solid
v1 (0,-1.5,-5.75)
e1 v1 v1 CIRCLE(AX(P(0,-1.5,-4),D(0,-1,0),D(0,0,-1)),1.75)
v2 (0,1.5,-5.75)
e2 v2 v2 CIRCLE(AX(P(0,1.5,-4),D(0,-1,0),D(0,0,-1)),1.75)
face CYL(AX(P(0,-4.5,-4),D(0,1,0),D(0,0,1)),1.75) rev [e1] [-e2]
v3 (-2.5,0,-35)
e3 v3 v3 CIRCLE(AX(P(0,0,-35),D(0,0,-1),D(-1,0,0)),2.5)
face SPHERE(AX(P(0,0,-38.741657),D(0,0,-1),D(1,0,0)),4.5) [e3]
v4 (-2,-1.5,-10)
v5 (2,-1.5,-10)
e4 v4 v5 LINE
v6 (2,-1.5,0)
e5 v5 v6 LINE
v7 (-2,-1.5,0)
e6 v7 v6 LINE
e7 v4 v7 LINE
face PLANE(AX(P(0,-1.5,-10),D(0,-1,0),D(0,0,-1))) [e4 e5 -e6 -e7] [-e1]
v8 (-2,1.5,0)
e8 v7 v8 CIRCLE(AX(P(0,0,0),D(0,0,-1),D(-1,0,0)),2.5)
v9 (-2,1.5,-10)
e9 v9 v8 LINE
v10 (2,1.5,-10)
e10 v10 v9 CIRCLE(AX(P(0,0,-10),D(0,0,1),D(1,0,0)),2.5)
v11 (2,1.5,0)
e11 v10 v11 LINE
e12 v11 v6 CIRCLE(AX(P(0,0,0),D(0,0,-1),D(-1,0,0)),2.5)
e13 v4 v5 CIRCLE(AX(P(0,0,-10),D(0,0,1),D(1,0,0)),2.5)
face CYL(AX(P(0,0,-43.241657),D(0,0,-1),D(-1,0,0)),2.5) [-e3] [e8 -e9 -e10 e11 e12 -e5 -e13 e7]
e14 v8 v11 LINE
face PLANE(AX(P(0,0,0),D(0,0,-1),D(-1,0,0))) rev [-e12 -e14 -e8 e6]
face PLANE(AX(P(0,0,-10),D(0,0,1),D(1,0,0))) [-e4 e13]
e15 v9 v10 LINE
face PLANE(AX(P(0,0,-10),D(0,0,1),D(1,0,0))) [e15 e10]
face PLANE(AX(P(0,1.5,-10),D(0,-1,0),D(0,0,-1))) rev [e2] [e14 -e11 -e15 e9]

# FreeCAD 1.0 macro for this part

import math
import FreeCAD as App
import Part
import Sketcher

V = App.Vector

doc = App.newDocument("Part")
body = doc.addObject("PartDesign::Body", "Body")

# Sketch on XZ plane
sketch1 = doc.addObject("Sketcher::SketchObject", "Sketch")
body.addObject(sketch1)
sketch1.AttachmentSupport = (doc.XZ_Plane, [""])
sketch1.MapMode = "FlatFace"
sketch1.addGeometry([
    Part.LineSegment(V(0, -43.241657, 0), V(0, 0, 0)),
    Part.LineSegment(V(0, 0, 0), V(2.5, 0, 0)),
    Part.LineSegment(V(2.5, 0, 0), V(2.5, -35, 0)),
    Part.ArcOfCircle(Part.Circle(V(0, -38.741657, 0), V(0, 0, 1), 4.5), math.radians(-90), math.radians(56.251011)),
], False)
sketch1.addConstraint([
    Sketcher.Constraint("Coincident", 0, 2, 1, 1),
    Sketcher.Constraint("Coincident", 1, 2, 2, 1),
    Sketcher.Constraint("Coincident", 2, 2, 3, 2),
    Sketcher.Constraint("Coincident", 3, 1, 0, 1),
    Sketcher.Constraint("Vertical", 0),
    Sketcher.Constraint("Horizontal", 1),
    Sketcher.Constraint("Vertical", 2),
    Sketcher.Constraint("Coincident", 0, 2, -1, 1),
    Sketcher.Constraint("PointOnObject", 3, 3, -2),
    Sketcher.Constraint("Radius", 3, 4.5),
    Sketcher.Constraint("DistanceY", 2, 2, 2, 1, 35.0),
    Sketcher.Constraint("DistanceX", 1, 1, 1, 2, 2.5),
])
revolution = doc.addObject("PartDesign::Revolution", "Revolution")
body.addObject(revolution)
revolution.Profile = sketch1
revolution.ReferenceAxis = (sketch1, ["V_Axis"])
revolution.Angle = 360

# Sketch on XY plane
sketch2 = doc.addObject("Sketcher::SketchObject", "Sketch001")
body.addObject(sketch2)
sketch2.AttachmentSupport = (doc.XY_Plane, [""])
sketch2.MapMode = "FlatFace"
sketch2.AttachmentOffset = App.Placement(V(0, 0, -10), App.Rotation())
sketch2.addGeometry([
    Part.ArcOfCircle(Part.Circle(V(0, 0, 0), V(0, 0, 1), 2.5), math.radians(36.869898), math.radians(143.130102)),
    Part.LineSegment(V(-2, 1.5, 0), V(2, 1.5, 0)),
    Part.LineSegment(V(2, -1.5, 0), V(-2, -1.5, 0)),
    Part.ArcOfCircle(Part.Circle(V(0, 0, 0), V(0, 0, 1), 2.5), math.radians(-143.130102), math.radians(-36.869898)),
], False)
sketch2.addConstraint([
    Sketcher.Constraint("Coincident", 0, 1, 1, 2),
    Sketcher.Constraint("Coincident", 1, 1, 0, 2),
    Sketcher.Constraint("Coincident", 2, 1, 3, 2),
    Sketcher.Constraint("Coincident", 3, 1, 2, 2),
    Sketcher.Constraint("Horizontal", 1),
    Sketcher.Constraint("Horizontal", 2),
    Sketcher.Constraint("Coincident", 0, 3, -1, 1),
    Sketcher.Constraint("Coincident", 3, 3, -1, 1),
    Sketcher.Constraint("Equal", 0, 3),
    Sketcher.Constraint("Vertical", 0, 1, 2, 1),
    Sketcher.Constraint("Radius", 0, 2.5),
    Sketcher.Constraint("DistanceX", 1, 1, 1, 2, 4.0),
])
pocket1 = doc.addObject("PartDesign::Pocket", "Pocket")
body.addObject(pocket1)
pocket1.Profile = sketch2
pocket1.Length = 10
pocket1.Reversed = True

# Sketch on XZ plane
sketch3 = doc.addObject("Sketcher::SketchObject", "Sketch002")
body.addObject(sketch3)
sketch3.AttachmentSupport = (doc.XZ_Plane, [""])
sketch3.MapMode = "FlatFace"
sketch3.addGeometry(Part.Circle(V(0, -4, 0), V(0, 0, 1), 1.75), False)
sketch3.addConstraint([
    Sketcher.Constraint("PointOnObject", 0, 3, -2),
    Sketcher.Constraint("Diameter", 0, 3.5),
    Sketcher.Constraint("DistanceY", 0, 3, -1, 1, 4.0),
])
pocket2 = doc.addObject("PartDesign::Pocket", "Pocket001")
body.addObject(pocket2)
pocket2.Profile = sketch3
pocket2.Type = "ThroughAll"
pocket2.Midplane = True

doc.recompute()
